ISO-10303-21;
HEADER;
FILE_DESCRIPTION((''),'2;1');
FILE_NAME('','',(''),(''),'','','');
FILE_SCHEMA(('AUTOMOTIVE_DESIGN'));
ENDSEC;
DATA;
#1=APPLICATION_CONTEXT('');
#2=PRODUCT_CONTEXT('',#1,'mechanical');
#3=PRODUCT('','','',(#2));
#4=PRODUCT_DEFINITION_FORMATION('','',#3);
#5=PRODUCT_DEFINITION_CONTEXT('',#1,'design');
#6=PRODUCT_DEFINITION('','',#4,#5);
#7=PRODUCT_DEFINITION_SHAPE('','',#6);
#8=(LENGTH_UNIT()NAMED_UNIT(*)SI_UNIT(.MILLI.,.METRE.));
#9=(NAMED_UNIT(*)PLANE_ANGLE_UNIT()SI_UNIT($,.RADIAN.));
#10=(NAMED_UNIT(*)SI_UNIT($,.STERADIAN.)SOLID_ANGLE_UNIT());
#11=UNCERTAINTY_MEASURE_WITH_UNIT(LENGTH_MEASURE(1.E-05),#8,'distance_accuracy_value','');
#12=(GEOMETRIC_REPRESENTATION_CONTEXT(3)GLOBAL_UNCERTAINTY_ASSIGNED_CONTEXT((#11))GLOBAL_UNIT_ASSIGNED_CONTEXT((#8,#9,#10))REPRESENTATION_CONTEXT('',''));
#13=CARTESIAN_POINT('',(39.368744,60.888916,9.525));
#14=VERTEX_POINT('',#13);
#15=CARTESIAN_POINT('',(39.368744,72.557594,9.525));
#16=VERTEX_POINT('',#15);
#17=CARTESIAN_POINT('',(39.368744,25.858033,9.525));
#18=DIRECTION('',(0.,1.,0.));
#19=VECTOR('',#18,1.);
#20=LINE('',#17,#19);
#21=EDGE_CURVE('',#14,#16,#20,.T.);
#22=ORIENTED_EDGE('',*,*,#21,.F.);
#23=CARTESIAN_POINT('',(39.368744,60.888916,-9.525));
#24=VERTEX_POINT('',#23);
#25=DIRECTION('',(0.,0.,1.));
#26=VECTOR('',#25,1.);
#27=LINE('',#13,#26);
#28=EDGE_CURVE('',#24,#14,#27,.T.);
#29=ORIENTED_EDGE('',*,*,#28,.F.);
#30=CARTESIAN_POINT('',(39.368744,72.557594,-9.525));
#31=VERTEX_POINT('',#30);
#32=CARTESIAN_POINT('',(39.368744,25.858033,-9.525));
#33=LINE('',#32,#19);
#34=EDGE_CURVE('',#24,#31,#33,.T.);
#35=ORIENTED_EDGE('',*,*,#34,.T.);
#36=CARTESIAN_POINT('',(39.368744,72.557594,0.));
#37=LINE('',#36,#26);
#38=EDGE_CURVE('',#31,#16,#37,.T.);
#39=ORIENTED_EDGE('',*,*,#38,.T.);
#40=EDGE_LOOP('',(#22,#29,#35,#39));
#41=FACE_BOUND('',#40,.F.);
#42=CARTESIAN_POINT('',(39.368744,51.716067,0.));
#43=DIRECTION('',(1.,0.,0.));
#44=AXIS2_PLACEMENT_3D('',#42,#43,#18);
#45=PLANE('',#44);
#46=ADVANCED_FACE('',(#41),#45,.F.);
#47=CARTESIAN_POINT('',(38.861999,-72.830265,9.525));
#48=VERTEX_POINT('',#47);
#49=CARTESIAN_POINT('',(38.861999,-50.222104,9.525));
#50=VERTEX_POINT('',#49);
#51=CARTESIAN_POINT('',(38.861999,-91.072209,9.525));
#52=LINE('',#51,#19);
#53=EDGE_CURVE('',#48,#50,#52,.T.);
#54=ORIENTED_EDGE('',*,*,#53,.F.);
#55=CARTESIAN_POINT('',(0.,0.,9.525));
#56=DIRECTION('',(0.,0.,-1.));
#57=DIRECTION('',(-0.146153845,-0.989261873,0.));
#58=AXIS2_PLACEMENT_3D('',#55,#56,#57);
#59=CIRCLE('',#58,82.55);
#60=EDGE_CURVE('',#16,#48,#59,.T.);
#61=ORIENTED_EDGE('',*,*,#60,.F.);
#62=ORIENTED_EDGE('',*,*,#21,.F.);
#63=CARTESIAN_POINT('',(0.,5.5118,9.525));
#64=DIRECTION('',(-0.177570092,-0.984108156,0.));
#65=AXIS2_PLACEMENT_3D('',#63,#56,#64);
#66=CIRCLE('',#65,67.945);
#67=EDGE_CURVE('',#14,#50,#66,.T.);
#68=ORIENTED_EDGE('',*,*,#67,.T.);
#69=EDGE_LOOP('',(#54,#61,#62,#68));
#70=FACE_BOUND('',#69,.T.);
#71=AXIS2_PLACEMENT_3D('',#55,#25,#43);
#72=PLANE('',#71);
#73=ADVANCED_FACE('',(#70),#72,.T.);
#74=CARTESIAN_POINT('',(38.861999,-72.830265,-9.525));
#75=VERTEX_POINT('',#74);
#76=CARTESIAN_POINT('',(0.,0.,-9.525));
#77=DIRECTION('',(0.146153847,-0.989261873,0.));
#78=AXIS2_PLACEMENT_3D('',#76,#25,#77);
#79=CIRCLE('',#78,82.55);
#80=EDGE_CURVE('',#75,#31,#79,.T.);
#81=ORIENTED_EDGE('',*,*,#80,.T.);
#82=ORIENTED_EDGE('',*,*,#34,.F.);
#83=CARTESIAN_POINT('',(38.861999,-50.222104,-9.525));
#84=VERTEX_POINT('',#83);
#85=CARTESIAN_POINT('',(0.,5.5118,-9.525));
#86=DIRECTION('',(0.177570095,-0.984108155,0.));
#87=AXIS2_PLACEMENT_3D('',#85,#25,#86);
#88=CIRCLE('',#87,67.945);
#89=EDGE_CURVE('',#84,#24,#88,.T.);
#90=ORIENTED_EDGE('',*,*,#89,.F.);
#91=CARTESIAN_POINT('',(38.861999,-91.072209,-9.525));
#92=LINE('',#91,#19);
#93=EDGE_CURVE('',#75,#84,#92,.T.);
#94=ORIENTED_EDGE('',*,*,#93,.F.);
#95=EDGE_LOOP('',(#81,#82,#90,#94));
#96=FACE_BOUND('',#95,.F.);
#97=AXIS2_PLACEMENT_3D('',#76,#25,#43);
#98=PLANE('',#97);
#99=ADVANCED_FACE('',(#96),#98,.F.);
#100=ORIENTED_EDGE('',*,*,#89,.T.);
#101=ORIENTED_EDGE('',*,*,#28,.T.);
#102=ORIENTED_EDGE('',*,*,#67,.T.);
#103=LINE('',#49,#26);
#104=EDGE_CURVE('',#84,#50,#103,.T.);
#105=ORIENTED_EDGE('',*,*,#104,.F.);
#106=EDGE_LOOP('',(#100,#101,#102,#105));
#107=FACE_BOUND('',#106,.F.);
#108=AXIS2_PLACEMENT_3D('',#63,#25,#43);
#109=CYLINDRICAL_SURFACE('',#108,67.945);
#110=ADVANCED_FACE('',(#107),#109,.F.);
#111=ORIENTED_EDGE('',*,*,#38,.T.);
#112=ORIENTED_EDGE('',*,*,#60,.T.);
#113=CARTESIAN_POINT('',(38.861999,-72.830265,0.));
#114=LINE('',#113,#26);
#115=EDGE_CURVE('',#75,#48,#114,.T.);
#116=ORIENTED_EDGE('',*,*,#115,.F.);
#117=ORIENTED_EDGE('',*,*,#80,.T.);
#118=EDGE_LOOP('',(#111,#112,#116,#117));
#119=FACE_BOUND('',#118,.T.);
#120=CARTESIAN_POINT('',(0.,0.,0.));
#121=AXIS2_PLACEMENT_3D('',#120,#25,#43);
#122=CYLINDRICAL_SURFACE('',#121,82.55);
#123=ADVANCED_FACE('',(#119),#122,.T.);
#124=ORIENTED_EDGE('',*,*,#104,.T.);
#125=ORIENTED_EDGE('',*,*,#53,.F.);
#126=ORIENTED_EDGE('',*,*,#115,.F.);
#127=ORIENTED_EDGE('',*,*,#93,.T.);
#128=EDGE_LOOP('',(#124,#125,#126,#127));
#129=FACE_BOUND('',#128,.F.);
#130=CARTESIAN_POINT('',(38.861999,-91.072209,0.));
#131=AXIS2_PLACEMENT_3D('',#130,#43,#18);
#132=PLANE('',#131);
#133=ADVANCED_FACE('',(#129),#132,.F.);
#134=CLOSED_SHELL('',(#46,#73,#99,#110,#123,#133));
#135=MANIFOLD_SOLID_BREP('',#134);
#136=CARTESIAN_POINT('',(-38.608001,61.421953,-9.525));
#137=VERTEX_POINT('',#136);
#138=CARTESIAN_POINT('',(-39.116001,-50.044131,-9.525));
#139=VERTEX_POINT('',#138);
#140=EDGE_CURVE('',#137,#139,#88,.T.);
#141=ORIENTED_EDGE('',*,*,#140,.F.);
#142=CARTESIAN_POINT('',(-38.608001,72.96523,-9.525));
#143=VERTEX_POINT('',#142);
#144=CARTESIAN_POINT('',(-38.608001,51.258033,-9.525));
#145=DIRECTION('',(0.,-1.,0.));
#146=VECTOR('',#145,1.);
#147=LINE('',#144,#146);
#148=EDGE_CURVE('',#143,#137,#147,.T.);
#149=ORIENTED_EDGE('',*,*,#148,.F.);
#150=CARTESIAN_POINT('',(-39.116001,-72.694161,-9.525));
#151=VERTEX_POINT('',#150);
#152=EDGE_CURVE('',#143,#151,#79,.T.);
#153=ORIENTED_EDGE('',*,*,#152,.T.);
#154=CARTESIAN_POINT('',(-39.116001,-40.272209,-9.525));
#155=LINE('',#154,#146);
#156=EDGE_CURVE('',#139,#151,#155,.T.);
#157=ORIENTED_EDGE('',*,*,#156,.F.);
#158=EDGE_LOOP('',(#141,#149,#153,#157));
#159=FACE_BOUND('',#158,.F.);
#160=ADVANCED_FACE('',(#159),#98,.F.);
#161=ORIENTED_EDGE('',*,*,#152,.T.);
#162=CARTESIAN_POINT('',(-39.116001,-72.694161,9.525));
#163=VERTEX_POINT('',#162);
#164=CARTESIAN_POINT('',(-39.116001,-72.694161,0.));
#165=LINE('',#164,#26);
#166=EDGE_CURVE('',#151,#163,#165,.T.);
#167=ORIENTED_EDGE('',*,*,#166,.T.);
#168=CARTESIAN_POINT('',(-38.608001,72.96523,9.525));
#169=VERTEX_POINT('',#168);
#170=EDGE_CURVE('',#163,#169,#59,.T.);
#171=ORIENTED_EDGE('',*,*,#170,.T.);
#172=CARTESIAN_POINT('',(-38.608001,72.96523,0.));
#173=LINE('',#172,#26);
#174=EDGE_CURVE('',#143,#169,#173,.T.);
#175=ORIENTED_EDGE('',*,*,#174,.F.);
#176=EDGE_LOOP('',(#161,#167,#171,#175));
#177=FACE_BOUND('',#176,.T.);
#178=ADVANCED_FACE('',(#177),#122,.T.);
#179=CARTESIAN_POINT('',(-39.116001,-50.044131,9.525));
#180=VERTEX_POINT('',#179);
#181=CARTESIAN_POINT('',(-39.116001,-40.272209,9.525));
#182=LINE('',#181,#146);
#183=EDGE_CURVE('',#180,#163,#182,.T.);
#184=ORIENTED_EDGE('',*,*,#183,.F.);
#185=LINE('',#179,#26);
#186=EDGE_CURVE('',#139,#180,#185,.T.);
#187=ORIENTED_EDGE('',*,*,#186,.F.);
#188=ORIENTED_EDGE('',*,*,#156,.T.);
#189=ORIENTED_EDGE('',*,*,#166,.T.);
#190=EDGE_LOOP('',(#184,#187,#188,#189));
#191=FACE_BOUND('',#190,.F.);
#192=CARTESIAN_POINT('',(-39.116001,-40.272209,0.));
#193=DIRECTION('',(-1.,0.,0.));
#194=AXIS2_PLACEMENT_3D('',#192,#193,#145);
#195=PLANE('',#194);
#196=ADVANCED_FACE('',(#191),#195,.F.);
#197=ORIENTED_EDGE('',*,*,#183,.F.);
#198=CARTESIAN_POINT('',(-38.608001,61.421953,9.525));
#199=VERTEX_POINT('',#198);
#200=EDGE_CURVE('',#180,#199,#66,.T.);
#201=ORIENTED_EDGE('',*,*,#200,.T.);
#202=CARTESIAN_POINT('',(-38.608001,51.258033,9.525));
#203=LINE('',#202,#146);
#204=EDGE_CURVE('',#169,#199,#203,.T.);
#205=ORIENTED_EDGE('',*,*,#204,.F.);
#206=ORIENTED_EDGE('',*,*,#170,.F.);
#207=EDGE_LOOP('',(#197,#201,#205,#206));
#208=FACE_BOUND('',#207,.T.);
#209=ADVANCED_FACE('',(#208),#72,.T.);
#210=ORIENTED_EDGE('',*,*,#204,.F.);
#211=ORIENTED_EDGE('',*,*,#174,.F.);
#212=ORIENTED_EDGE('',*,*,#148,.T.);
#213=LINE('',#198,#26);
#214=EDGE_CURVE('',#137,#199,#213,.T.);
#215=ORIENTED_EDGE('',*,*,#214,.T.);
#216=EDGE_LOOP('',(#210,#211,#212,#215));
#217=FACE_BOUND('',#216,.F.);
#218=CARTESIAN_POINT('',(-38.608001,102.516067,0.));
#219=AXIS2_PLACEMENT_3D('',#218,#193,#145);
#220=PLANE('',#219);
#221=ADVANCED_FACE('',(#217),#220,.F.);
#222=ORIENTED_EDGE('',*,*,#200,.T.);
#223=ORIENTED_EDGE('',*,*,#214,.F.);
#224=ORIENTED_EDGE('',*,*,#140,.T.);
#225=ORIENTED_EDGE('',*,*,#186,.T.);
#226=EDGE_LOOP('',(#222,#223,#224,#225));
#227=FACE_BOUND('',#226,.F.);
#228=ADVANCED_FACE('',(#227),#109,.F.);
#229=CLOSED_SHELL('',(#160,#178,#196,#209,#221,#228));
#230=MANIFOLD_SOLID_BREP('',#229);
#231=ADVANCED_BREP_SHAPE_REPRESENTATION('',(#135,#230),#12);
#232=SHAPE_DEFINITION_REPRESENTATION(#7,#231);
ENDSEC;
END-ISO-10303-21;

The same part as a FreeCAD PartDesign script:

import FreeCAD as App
import Part
import Sketcher
from FreeCAD import Vector
Q = App.Units.Quantity


def add_polygon(sketch, points):
    """Adds a closed chain of lines whose ends are joined by coincident constraints."""
    first, n = sketch.GeometryCount, len(points)
    for a, b in zip(points, points[1:] + points[:1]):
        sketch.addGeometry(Part.LineSegment(App.Vector(*a, 0), App.Vector(*b, 0)), False)
    for i in range(n):
        sketch.addConstraint(Sketcher.Constraint("Coincident", first + i, 2, first + (i + 1) % n, 1))

doc = App.newDocument("Part")
body = doc.addObject("PartDesign::Body", "Body")
body.AllowCompound = True

# Sketch on XY plane
sketch1 = body.newObject("Sketcher::SketchObject", "Sketch")
sketch1.AttachmentSupport = (doc.getObject("XY_Plane"), [""])
sketch1.MapMode = "FlatFace"
sketch1.addGeometry(Part.Circle(Vector(0, 0, 0), Vector(0, 0, 1), 83), False)
sketch1.addConstraint([
    Sketcher.Constraint("Coincident", 0, 3, -1, 1),
    Sketcher.Constraint("Diameter", 0, Q("6.5 in")),
])
pad1 = body.newObject("PartDesign::Pad", "Pad")
pad1.Profile = sketch1
pad1.Length = Q("0.75 in")
pad1.Midplane = True

# Sketch on XY plane
sketch2 = body.newObject("Sketcher::SketchObject", "Sketch001")
sketch2.AttachmentSupport = (doc.getObject("XY_Plane"), [""])
sketch2.MapMode = "FlatFace"
add_polygon(sketch2, [(-12, 17), (-12, -83), (12, -83), (12, 17)])  # lines 0-3
sketch2.addConstraint([
    Sketcher.Constraint("Vertical", 0),
    Sketcher.Constraint("Horizontal", 1),
    Sketcher.Constraint("Vertical", 2),
    Sketcher.Constraint("Horizontal", 3),
    Sketcher.Constraint("DistanceX", 1, 1, 1, 2, Q("0.95 in")),
    Sketcher.Constraint("DistanceY", 0, 2, 0, 1, Q("3.915 in")),
    Sketcher.Constraint("DistanceX", 0, 2, -1, 1, Q("0.475 in")),
    Sketcher.Constraint("DistanceY", 0, 2, -1, 1, Q("82.621474 mm")),
])
pocket1 = body.newObject("PartDesign::Pocket", "Pocket")
pocket1.Profile = sketch2
pocket1.Length = Q("0.75 in")
pocket1.Midplane = True

# Sketch on XY plane
sketch3 = body.newObject("Sketcher::SketchObject", "Sketch002")
sketch3.AttachmentSupport = (doc.getObject("XY_Plane"), [""])
sketch3.MapMode = "FlatFace"
sketch3.AttachmentOffset = App.Placement(Vector(0, 0, 0.375 * 25.4), App.Rotation())
sketch3.addGeometry(Part.Circle(Vector(0, 6, 0), Vector(0, 0, 1), 68), False)
sketch3.addConstraint([
    Sketcher.Constraint("PointOnObject", 0, 3, -2),
    Sketcher.Constraint("Diameter", 0, Q("5.35 in")),
    Sketcher.Constraint("DistanceY", -1, 1, 0, 3, Q("0.217 in")),
])
pocket2 = body.newObject("PartDesign::Pocket", "Pocket001")
pocket2.Profile = sketch3
pocket2.Length = Q("0.75 in")

# Sketch on XY plane
sketch4 = body.newObject("Sketcher::SketchObject", "Sketch003")
sketch4.AttachmentSupport = (doc.getObject("XY_Plane"), [""])
sketch4.MapMode = "FlatFace"
add_polygon(sketch4, [(39, -40), (-39, -40), (-39, -91), (39, -91)])  # lines 0-3
sketch4.addConstraint([
    Sketcher.Constraint("Horizontal", 0),
    Sketcher.Constraint("Vertical", 1),
    Sketcher.Constraint("Horizontal", 2),
    Sketcher.Constraint("Vertical", 3),
    Sketcher.Constraint("DistanceY", 1, 2, 1, 1, Q("2 in")),
    Sketcher.Constraint("DistanceX", 0, 2, 0, 1, Q("3.07 in")),
    Sketcher.Constraint("DistanceX", 0, 2, -1, 1, Q("1.54 in")),
    Sketcher.Constraint("DistanceY", 0, 2, -1, 1, Q("40.272209 mm")),
])
pocket3 = body.newObject("PartDesign::Pocket", "Pocket002")
pocket3.Profile = sketch4
pocket3.Length = Q("0.75 in")
pocket3.Midplane = True

# Sketch on XY plane
sketch5 = body.newObject("Sketcher::SketchObject", "Sketch004")
sketch5.AttachmentSupport = (doc.getObject("XY_Plane"), [""])
sketch5.MapMode = "FlatFace"
add_polygon(sketch5, [(39.368744, 102.805024), (6.095999, 102.516067), (-38.608001, 102.516067), (-38.608001, 51.716067), (39.368744, 51.716067)])  # lines 0-4
sketch5.addConstraint([
    Sketcher.Constraint("Horizontal", 1),
    Sketcher.Constraint("Vertical", 2),
    Sketcher.Constraint("Horizontal", 3),
    Sketcher.Constraint("Vertical", 4),
    Sketcher.Constraint("DistanceY", 2, 2, 2, 1, Q("2 in")),
    Sketcher.Constraint("DistanceX", 1, 2, 1, 1, Q("1.76 in")),
    Sketcher.Constraint("Distance", 0, Q("1.31 in")),
    Sketcher.Constraint("DistanceX", -1, 1, 0, 2, Q("0.2399999 in")),
    Sketcher.Constraint("DistanceX", 3, 1, 3, 2, Q("77.976745 mm")),
    Sketcher.Constraint("DistanceY", -1, 1, 0, 2, Q("102.516067 mm")),
])
pocket4 = body.newObject("PartDesign::Pocket", "Pocket003")
pocket4.Profile = sketch5
pocket4.Length = Q("1.75 in")
pocket4.Midplane = True

doc.recompute()
